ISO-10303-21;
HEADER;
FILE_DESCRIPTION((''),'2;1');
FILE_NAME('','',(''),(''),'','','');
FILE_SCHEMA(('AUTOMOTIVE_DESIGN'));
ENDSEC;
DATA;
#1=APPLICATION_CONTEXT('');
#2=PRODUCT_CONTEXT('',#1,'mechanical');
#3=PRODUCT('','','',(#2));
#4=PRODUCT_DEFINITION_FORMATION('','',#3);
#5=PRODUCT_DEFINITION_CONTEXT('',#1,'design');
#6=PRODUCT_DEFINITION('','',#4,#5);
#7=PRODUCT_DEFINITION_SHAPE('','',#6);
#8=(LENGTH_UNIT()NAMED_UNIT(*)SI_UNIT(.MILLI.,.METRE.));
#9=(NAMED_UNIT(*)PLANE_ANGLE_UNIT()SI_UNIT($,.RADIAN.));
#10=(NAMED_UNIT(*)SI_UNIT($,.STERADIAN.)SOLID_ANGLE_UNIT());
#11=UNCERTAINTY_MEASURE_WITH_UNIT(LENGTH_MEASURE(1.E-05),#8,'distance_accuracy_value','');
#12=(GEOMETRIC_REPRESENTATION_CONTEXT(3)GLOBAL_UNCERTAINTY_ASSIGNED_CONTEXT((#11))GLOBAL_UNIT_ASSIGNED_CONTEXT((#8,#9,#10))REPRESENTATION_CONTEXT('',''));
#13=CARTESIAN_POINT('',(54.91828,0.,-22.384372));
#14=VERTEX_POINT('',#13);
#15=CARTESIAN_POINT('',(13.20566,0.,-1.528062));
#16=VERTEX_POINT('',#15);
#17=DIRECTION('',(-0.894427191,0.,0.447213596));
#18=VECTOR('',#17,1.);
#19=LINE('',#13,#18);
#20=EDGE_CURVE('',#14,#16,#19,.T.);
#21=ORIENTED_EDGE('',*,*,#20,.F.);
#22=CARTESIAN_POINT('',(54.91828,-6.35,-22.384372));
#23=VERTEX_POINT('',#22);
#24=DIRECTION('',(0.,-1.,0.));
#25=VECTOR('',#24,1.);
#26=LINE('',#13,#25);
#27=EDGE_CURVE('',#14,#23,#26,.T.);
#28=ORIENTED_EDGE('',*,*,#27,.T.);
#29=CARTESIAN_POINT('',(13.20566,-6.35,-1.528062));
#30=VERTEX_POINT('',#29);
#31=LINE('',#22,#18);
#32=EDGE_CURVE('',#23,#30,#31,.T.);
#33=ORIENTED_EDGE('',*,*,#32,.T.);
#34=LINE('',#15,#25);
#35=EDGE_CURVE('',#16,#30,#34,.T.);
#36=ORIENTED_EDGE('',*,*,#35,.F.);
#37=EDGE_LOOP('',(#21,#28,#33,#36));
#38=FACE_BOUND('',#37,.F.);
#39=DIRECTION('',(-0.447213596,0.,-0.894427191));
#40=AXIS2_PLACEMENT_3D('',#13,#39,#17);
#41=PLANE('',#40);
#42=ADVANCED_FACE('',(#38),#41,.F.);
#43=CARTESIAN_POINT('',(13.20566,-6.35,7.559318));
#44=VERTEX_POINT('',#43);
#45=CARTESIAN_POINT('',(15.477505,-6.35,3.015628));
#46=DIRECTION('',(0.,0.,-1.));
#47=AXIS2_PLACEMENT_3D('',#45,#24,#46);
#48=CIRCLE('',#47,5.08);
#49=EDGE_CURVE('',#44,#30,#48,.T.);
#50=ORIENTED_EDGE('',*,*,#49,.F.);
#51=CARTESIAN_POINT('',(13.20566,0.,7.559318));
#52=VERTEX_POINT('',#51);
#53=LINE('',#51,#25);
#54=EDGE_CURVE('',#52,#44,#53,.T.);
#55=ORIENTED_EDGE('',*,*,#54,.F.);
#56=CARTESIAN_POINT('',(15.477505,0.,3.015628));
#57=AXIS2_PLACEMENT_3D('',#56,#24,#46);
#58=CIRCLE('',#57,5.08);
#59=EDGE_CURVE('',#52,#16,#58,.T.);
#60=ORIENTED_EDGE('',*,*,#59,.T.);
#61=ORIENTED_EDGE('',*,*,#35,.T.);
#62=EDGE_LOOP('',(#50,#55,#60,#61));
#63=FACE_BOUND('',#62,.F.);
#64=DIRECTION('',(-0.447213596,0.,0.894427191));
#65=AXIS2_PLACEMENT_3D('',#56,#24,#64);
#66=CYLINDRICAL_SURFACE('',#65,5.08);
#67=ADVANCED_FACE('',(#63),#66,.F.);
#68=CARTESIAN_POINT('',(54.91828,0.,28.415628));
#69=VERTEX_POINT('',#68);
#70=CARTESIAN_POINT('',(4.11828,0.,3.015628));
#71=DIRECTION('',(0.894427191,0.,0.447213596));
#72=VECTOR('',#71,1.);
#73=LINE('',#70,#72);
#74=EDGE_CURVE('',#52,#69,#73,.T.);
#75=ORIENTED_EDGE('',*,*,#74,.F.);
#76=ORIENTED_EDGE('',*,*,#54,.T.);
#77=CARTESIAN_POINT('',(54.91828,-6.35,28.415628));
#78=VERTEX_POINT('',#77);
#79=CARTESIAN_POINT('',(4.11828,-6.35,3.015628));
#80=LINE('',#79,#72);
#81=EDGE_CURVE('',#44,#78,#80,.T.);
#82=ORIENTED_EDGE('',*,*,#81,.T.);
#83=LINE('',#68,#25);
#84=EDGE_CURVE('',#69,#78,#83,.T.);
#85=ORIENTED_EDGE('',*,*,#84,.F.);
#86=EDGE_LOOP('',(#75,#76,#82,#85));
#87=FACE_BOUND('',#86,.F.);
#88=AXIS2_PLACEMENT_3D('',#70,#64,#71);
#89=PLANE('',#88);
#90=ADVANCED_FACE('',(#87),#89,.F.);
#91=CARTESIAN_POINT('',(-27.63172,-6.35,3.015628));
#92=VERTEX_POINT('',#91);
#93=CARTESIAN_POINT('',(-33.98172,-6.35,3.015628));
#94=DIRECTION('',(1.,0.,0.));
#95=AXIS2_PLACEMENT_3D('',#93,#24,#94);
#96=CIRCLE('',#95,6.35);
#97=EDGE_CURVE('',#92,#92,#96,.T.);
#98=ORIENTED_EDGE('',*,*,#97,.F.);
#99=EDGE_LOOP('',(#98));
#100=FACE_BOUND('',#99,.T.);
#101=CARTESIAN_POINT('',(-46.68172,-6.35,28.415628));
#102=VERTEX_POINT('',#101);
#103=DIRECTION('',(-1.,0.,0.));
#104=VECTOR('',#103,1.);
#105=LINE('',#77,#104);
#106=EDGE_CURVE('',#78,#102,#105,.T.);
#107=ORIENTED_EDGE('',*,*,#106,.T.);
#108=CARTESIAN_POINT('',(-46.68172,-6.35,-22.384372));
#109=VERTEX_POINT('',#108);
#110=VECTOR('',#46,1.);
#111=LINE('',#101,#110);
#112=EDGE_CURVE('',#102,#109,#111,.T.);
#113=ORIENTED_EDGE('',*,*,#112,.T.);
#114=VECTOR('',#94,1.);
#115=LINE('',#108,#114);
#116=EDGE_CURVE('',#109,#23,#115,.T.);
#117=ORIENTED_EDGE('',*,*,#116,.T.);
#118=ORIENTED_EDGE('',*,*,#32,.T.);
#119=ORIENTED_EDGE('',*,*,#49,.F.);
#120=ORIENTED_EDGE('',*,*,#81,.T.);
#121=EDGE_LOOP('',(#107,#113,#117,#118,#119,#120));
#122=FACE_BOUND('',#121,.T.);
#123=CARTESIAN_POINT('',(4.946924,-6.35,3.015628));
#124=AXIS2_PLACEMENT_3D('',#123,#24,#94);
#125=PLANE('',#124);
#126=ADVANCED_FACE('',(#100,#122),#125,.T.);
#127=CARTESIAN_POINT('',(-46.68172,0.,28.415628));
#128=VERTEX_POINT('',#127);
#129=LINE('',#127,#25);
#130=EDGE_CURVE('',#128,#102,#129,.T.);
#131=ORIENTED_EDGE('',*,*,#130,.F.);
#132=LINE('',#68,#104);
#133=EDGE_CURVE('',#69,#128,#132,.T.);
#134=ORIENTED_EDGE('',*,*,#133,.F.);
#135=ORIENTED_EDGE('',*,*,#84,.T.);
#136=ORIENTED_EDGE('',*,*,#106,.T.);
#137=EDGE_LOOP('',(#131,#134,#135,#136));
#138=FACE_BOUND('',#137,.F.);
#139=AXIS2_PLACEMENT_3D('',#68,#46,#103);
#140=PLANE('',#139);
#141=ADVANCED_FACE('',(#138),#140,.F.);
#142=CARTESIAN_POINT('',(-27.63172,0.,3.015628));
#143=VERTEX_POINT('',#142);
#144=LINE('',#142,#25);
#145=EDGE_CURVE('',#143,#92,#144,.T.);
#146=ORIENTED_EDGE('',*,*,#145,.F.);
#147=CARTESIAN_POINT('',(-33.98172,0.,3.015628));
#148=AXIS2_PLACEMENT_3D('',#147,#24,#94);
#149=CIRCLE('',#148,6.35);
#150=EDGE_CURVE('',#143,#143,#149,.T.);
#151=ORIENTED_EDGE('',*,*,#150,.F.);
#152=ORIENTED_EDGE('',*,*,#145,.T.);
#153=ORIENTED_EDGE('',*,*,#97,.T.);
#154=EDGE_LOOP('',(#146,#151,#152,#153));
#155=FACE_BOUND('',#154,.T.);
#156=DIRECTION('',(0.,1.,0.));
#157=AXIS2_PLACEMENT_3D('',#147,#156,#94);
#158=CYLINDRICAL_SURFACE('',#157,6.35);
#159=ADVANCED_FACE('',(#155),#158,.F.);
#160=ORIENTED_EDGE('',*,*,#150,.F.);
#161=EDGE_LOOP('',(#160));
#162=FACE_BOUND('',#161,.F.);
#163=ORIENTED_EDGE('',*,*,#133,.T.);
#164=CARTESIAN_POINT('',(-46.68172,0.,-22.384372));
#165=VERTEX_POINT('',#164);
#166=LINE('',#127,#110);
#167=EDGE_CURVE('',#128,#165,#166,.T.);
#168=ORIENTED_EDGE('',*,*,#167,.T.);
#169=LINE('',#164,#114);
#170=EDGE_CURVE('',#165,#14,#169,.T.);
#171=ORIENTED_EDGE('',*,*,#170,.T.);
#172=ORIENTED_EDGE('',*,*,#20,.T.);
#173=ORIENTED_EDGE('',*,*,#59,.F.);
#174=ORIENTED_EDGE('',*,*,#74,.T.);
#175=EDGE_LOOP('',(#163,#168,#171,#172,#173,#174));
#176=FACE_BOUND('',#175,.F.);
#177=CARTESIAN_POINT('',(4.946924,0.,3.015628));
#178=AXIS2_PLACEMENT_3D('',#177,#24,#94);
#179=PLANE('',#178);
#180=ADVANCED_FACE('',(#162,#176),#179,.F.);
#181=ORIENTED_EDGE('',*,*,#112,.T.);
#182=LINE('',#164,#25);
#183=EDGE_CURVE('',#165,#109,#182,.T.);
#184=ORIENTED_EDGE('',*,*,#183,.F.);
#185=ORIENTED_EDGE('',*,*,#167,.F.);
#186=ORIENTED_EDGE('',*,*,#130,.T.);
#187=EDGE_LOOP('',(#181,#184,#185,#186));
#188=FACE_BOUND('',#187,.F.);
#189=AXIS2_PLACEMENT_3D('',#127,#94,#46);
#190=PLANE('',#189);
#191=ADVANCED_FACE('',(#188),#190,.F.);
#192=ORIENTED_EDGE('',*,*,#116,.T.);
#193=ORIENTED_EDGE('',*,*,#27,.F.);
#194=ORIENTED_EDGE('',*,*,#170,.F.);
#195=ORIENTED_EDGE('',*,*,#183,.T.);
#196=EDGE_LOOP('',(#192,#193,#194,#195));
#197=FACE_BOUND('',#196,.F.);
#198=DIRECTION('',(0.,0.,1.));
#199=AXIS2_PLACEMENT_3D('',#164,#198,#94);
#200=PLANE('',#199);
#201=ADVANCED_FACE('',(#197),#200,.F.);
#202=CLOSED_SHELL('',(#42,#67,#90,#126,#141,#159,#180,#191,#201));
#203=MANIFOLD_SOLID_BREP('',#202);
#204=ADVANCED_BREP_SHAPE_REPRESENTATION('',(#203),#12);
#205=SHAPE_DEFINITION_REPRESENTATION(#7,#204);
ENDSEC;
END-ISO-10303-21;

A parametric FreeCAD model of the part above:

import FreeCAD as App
import Part
import Sketcher
Q = App.Units.Quantity


def edges_at(feature, points):
    """Names of the edges that pass closest to the given points."""
    edges = feature.Shape.Edges
    near = lambda p: min(range(len(edges)), key=lambda i: edges[i].distToShape(Part.Vertex(*p))[0])
    return sorted({f"Edge{near(p) + 1}" for p in points})


def add_polygon(sketch, points):
    """Adds a closed chain of lines whose ends are joined by coincident constraints."""
    first, n = sketch.GeometryCount, len(points)
    for a, b in zip(points, points[1:] + points[:1]):
        sketch.addGeometry(Part.LineSegment(App.Vector(*a, 0), App.Vector(*b, 0)), False)
    for i in range(n):
        sketch.addConstraint(Sketcher.Constraint("Coincident", first + i, 2, first + (i + 1) % n, 1))

doc = App.newDocument("Part")
params = doc.addObject("Spreadsheet::Sheet", "Params")
for row, (alias, value) in enumerate([
    ("sketch1_diameter", "0.5 in"),
    ("sketch1_width", "4 in"),
    ("sketch1_height", "2 in"),
    ("pad1_length", "0.25 in"),
    ("fillet_radius", "0.2 in"),
], start=1):
    params.set(f"A{row}", alias)
    params.set(f"B{row}", "=" + value)
    params.setAlias(f"B{row}", alias)

body = doc.addObject("PartDesign::Body", "Body")

# Sketch on XZ plane
sketch1 = body.newObject("Sketcher::SketchObject", "Sketch")
sketch1.AttachmentSupport = (doc.getObject("XZ_Plane"), [""])
sketch1.MapMode = "FlatFace"
add_polygon(sketch1, [(55, 28), (-47, 28), (-47, -22), (55, -22), (4, 3)])  # lines 0-4
sketch1.addGeometry(Part.Circle(App.Vector(-34, 3, 0), App.Vector(0, 0, 1), 6), False)  # 5
sketch1.addConstraint(Sketcher.Constraint("Horizontal", 0))
sketch1.addConstraint(Sketcher.Constraint("Vertical", 1))
sketch1.addConstraint(Sketcher.Constraint("Horizontal", 2))
sketch1.addConstraint(Sketcher.Constraint("Horizontal", 5, 3, 3, 2))
sketch1.addConstraint(Sketcher.Constraint("Vertical", 2, 2, 4, 2))
sketch1.addConstraint(Sketcher.Constraint("Equal", 3, 4))
sketch1.addConstraint(Sketcher.Constraint("Diameter", 5, Q("0.5 in")))
sketch1.addConstraint(Sketcher.Constraint("DistanceX", 0, 2, 0, 1, Q("4 in")))
sketch1.addConstraint(Sketcher.Constraint("DistanceY", 1, 2, 1, 1, Q("2 in")))
sketch1.addConstraint(Sketcher.Constraint("DistanceX", 0, 2, 3, 2, Q("2 in")))
sketch1.addConstraint(Sketcher.Constraint("DistanceX", 0, 2, 5, 3, Q("0.5 in")))
sketch1.addConstraint(Sketcher.Constraint("DistanceX", 5, 3, -1, 1, 33.98172))
sketch1.addConstraint(Sketcher.Constraint("DistanceY", -1, 1, 5, 3, 3.015628))
sketch1.setExpression("Constraints[11]", "Params.sketch1_diameter")
sketch1.setExpression("Constraints[12]", "Params.sketch1_width")
sketch1.setExpression("Constraints[13]", "Params.sketch1_height")
pad1 = body.newObject("PartDesign::Pad", "Pad")
pad1.Profile = sketch1
pad1.setExpression("Length", "Params.pad1_length")
doc.recompute()

fillet = body.newObject("PartDesign::Fillet", "Fillet")
fillet.Base = (pad1, edges_at(pad1, [(4.118, -3.175, 3.016)]))
fillet.setExpression("Radius", "Params.fillet_radius")

doc.recompute()
